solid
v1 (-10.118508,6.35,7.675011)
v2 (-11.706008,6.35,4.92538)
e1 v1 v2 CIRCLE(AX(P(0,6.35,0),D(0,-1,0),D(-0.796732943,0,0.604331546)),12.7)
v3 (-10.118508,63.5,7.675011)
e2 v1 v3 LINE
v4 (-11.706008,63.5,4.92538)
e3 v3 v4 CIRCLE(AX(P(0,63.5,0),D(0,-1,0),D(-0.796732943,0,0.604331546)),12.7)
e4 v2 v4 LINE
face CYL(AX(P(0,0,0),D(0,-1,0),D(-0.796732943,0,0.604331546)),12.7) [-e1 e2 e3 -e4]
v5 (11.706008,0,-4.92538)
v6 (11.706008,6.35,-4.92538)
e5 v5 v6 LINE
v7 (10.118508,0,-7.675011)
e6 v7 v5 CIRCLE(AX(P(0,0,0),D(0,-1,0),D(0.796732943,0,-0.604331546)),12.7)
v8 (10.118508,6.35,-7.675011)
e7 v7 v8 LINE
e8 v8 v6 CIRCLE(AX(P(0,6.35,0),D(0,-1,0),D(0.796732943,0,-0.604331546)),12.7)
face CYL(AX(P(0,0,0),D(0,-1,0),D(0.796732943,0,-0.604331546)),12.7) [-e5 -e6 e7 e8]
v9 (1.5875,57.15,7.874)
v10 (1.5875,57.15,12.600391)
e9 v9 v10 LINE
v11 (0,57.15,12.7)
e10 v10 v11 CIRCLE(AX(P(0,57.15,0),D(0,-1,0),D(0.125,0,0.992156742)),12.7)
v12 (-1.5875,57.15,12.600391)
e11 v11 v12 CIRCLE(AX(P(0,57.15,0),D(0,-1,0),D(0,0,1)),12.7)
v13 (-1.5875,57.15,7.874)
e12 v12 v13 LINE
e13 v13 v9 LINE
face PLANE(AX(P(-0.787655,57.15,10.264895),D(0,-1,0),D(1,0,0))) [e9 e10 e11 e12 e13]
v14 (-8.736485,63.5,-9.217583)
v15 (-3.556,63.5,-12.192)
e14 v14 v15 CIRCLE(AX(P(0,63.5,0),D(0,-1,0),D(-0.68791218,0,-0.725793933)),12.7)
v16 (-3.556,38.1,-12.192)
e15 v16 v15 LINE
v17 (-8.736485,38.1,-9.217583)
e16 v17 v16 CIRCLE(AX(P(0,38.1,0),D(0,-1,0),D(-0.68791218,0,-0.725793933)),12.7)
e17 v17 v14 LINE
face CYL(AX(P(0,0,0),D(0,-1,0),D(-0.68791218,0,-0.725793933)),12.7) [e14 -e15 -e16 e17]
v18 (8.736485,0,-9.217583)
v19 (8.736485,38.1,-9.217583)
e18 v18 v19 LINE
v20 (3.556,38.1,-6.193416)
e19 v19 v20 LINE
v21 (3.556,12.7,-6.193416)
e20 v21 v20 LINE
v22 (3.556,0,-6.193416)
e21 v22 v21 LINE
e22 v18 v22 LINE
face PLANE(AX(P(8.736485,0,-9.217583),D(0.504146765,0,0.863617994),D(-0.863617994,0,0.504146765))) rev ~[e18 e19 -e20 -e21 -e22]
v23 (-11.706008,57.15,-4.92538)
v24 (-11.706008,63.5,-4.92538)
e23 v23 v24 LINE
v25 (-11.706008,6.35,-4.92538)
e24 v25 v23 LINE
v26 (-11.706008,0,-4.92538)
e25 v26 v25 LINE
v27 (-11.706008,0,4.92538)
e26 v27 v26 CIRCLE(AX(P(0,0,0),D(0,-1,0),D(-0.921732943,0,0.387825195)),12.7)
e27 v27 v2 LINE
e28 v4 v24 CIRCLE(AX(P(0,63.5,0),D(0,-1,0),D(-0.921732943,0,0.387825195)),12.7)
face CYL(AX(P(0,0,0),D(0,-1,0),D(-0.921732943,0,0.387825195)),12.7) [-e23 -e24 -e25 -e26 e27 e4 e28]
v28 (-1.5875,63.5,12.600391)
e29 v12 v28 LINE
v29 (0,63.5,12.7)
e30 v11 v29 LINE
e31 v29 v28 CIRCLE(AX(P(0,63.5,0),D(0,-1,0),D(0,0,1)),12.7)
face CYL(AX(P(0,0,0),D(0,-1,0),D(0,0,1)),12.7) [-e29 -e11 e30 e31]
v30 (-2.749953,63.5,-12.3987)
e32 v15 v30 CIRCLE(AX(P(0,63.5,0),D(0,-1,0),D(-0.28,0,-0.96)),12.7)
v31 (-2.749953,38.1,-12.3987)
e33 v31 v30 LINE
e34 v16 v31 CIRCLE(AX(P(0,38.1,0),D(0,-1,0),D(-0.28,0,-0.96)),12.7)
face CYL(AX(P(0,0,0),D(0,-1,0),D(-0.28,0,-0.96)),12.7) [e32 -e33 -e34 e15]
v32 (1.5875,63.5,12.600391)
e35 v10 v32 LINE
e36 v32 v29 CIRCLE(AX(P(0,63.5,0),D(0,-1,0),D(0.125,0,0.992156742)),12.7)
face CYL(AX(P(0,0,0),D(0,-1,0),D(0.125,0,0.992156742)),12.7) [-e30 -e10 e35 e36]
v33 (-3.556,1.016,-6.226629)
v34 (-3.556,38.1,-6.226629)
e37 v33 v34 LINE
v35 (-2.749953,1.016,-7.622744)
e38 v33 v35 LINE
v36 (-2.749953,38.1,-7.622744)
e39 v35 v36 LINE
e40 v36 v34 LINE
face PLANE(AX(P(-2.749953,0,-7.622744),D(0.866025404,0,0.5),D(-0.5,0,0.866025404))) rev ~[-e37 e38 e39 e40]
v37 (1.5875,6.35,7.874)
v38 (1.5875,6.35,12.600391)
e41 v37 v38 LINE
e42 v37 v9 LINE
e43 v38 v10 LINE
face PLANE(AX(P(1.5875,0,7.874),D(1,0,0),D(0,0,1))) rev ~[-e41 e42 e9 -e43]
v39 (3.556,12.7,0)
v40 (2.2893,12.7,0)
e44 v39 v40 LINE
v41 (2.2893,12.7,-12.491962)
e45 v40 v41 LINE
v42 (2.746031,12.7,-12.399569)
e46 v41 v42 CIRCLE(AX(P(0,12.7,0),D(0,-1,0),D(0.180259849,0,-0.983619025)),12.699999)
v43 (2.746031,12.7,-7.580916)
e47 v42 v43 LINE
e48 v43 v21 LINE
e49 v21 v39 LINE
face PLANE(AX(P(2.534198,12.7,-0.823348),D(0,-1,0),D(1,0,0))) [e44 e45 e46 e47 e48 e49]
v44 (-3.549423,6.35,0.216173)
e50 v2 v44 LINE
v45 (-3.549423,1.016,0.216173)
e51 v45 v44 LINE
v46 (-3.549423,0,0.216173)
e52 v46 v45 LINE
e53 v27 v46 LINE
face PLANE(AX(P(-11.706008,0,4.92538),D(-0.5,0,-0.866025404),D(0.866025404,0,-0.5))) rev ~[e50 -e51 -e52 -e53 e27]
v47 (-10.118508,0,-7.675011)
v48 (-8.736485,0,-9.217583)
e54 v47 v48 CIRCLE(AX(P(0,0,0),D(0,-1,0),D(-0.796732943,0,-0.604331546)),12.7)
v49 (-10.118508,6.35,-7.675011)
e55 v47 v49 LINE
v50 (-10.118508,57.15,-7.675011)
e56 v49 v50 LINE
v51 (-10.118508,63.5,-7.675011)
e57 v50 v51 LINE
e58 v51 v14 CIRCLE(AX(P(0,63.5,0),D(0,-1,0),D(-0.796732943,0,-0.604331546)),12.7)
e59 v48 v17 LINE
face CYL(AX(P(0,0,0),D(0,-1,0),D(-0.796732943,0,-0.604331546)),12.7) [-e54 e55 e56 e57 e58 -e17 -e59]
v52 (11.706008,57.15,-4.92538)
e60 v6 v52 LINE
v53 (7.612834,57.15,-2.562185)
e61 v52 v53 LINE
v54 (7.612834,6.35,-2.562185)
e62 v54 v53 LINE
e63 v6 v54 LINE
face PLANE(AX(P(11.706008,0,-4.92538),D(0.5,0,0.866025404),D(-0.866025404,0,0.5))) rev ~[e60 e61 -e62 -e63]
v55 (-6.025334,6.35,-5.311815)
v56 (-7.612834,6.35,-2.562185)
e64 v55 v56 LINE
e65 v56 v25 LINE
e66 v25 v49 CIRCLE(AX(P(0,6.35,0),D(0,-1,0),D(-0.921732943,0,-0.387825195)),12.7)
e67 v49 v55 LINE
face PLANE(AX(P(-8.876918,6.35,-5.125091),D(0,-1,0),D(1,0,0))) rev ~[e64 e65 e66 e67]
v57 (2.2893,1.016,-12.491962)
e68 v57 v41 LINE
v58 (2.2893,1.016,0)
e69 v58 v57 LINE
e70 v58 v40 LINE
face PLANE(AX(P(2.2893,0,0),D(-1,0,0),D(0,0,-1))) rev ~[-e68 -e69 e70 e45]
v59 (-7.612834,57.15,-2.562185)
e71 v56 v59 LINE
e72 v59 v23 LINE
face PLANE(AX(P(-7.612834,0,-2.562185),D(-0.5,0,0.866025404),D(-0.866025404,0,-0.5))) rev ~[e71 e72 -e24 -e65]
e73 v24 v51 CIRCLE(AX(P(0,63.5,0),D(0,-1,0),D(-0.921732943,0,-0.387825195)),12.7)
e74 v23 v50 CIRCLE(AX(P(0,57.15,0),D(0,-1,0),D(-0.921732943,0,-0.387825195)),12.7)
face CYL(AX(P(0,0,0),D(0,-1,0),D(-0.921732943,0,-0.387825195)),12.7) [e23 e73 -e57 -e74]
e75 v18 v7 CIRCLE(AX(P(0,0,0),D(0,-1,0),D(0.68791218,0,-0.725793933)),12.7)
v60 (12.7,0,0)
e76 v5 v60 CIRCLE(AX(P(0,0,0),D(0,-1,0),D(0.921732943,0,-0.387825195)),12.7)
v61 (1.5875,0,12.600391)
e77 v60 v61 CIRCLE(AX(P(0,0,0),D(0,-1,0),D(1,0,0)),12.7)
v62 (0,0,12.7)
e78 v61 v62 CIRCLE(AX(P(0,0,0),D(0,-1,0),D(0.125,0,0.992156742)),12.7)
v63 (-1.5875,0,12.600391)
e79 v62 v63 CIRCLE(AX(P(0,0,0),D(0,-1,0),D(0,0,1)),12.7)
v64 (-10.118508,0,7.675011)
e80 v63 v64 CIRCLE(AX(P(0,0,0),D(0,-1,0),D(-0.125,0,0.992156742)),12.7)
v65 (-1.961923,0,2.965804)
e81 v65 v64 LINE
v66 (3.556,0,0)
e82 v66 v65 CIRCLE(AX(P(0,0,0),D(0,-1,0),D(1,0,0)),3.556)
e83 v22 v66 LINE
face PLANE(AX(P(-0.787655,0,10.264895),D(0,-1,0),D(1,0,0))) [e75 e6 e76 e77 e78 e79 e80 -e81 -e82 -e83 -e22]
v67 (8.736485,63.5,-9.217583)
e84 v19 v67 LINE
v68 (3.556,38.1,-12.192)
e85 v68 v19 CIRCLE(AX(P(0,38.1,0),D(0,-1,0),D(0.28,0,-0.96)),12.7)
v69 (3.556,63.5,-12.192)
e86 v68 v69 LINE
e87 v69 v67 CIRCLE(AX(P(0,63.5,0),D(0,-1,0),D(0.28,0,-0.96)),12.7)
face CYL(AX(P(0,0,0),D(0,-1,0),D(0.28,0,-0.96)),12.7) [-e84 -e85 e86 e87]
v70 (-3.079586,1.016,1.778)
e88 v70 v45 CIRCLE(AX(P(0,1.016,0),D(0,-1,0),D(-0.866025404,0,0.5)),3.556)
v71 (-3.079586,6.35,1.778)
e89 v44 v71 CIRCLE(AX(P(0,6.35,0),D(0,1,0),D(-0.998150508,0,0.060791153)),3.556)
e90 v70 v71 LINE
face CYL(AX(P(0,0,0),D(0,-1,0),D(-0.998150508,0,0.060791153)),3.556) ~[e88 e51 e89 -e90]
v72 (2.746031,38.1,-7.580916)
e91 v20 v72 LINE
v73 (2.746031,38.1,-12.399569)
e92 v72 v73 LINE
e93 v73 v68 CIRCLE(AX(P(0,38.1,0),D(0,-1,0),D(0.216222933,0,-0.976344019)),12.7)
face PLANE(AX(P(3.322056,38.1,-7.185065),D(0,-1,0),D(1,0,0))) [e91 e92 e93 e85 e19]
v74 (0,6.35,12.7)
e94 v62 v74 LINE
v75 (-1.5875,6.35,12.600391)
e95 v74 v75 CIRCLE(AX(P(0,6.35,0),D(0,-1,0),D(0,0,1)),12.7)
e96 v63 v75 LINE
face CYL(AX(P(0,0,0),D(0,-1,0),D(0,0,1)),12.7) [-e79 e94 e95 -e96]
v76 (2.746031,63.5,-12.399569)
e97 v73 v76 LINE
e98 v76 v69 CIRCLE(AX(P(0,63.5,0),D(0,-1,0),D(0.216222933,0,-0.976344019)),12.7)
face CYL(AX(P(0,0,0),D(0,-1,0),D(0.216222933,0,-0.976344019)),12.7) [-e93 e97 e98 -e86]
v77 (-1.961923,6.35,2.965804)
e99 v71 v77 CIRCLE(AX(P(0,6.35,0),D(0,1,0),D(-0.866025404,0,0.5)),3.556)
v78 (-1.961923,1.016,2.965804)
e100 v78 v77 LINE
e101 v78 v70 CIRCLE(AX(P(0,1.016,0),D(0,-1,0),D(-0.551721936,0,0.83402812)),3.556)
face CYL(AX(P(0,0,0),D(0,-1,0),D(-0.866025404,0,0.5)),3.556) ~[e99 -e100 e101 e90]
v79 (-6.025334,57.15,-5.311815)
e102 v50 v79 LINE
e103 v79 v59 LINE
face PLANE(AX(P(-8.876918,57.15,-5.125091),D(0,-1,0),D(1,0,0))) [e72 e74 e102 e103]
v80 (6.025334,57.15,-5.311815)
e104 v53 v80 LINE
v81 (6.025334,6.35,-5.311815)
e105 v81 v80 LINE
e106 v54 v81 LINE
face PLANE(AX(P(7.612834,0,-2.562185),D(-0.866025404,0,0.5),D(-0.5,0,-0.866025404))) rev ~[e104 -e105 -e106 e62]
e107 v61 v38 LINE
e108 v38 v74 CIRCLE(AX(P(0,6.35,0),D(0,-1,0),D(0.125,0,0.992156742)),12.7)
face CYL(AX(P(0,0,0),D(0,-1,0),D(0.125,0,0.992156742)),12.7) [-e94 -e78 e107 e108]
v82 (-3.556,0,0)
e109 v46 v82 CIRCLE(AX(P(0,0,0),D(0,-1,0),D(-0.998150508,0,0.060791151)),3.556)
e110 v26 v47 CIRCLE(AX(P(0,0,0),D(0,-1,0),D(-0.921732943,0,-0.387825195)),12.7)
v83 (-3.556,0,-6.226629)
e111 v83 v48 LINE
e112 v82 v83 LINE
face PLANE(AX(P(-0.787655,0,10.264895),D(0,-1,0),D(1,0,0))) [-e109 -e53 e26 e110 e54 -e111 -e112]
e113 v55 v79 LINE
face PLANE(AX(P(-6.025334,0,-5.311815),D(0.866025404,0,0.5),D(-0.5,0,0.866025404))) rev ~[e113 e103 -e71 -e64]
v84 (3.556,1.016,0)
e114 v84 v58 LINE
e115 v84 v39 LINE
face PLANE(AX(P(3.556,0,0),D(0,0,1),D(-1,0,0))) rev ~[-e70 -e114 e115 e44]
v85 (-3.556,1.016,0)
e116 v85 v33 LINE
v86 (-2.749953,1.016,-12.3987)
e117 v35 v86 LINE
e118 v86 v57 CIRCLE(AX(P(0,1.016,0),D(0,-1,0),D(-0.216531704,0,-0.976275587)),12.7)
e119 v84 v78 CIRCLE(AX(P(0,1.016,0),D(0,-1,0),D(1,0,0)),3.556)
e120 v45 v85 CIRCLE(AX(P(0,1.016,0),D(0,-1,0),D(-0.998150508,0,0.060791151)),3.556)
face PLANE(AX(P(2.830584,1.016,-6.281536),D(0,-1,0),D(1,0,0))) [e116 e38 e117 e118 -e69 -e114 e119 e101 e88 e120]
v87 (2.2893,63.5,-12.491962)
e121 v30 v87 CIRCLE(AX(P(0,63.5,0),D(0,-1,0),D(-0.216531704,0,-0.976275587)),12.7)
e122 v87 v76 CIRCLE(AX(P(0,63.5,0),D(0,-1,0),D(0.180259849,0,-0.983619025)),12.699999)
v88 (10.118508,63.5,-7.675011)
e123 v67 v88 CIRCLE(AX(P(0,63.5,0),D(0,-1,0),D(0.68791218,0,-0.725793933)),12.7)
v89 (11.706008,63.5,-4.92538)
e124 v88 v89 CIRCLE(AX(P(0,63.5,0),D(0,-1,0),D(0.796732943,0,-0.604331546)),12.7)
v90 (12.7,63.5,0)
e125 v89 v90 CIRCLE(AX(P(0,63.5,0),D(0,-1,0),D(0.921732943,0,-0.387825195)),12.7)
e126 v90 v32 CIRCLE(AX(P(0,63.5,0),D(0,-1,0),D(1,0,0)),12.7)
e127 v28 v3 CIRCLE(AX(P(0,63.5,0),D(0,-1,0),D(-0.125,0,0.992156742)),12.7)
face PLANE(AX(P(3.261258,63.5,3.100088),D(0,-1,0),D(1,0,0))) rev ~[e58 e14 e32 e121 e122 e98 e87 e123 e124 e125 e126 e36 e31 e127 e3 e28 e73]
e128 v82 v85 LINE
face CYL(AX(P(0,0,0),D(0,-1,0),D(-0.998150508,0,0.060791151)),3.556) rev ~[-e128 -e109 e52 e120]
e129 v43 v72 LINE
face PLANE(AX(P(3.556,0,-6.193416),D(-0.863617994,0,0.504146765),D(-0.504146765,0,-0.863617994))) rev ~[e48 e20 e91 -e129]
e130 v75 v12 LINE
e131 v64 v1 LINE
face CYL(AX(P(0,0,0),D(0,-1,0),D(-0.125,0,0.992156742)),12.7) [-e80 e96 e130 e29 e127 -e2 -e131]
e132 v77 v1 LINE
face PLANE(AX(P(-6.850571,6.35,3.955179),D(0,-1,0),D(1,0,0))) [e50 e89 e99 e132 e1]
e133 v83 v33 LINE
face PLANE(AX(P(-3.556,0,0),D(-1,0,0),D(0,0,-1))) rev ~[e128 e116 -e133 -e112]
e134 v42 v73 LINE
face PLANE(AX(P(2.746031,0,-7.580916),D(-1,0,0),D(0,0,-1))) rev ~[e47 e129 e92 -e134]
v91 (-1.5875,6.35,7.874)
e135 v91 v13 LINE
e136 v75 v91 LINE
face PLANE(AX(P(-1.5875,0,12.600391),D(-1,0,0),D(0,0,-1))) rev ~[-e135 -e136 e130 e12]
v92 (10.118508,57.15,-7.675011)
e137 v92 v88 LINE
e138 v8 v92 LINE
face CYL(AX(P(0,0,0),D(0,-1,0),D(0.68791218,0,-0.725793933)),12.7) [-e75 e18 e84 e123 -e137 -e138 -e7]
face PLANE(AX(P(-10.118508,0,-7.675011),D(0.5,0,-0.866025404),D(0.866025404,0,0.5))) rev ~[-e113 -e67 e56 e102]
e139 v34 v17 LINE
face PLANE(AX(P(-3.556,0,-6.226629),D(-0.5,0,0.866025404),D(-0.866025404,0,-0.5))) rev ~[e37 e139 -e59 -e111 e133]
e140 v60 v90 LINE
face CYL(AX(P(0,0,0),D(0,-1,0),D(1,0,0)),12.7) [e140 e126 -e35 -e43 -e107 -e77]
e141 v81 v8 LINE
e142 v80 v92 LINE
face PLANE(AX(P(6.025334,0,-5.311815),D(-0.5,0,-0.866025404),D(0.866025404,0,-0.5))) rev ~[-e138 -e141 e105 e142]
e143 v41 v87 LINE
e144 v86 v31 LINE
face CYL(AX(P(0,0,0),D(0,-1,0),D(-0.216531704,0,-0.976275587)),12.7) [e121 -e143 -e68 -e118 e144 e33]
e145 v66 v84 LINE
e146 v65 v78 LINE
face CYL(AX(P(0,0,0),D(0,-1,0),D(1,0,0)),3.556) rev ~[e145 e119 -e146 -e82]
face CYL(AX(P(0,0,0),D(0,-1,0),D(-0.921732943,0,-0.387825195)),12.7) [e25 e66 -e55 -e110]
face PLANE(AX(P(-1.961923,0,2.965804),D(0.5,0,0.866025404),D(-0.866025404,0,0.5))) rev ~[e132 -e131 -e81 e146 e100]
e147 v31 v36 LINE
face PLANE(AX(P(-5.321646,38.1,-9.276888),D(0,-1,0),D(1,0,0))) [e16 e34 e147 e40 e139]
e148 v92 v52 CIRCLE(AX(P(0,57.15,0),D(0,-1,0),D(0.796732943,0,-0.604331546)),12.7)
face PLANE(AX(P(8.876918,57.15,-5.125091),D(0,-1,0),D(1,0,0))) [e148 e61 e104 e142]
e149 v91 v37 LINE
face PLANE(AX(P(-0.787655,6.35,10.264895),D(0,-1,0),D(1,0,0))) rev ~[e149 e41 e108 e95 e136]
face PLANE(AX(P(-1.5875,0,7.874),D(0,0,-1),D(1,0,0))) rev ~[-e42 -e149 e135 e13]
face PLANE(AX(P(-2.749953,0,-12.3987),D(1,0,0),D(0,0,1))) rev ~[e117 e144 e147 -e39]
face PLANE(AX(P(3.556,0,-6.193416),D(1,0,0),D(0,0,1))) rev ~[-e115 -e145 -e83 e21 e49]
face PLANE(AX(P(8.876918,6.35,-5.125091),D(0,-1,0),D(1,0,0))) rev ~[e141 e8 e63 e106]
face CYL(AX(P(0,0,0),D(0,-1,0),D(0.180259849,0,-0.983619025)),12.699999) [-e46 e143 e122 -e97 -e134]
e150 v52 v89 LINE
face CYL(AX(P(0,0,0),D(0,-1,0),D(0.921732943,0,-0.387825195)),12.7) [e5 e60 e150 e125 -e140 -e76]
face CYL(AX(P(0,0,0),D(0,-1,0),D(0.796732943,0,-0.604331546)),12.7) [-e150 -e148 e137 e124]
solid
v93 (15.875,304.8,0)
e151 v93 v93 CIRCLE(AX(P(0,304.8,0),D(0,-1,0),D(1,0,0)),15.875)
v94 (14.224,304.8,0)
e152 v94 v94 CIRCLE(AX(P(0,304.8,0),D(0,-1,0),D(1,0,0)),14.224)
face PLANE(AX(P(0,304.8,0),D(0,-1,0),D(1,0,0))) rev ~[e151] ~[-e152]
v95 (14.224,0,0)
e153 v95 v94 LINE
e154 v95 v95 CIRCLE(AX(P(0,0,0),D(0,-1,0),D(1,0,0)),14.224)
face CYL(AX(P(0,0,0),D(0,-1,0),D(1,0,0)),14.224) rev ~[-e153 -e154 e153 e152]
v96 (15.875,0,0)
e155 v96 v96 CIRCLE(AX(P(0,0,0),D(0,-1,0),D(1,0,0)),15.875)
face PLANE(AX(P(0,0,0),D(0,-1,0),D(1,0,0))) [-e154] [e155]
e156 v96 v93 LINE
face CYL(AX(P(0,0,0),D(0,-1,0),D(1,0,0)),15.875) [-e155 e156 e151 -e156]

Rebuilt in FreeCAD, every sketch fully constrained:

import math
import FreeCAD as App
import Part
import Sketcher
Q = App.Units.Quantity

doc = App.newDocument("Part")
body = doc.addObject("PartDesign::Body", "Body")

# Sketch on XZ plane
sketch1 = body.newObject("Sketcher::SketchObject", "Sketch")
sketch1.AttachmentSupport = (doc.getObject("XZ_Plane"), [""])
sketch1.MapMode = "FlatFace"
sketch1.addGeometry([
    Part.Circle(App.Vector(0, 0, 0), App.Vector(0, 0, 1), 15.875),
    Part.Circle(App.Vector(0, 0, 0), App.Vector(0, 0, 1), 14.224),
], False)
sketch1.addConstraint([
    Sketcher.Constraint("Coincident", 0, 3, -1, 1),
    Sketcher.Constraint("Coincident", 1, 3, -1, 1),
    Sketcher.Constraint("Diameter", 0, Q("1.25 in")),
    Sketcher.Constraint("Diameter", 1, Q("1.12 in")),
])
pad1 = body.newObject("PartDesign::Pad", "Pad")
pad1.Profile = sketch1
pad1.Length = Q("12 in")
pad1.Reversed = True
body2 = doc.addObject("PartDesign::Body", "Body001")

# Sketch on XZ plane
sketch2 = body2.newObject("Sketcher::SketchObject", "Sketch001")
sketch2.AttachmentSupport = (doc.getObject("XZ_Plane001"), [""])
sketch2.MapMode = "FlatFace"
sketch2.addGeometry([
    Part.ArcOfCircle(Part.Circle(App.Vector(0, 0, 0), App.Vector(0, 0, 1), 12.7), math.radians(97.180756), math.radians(142.819244)),  # 0
    Part.ArcOfCircle(Part.Circle(App.Vector(0, 0, 0), App.Vector(0, 0, 1), 12.7), math.radians(142.819244), math.radians(157.180756)),  # 1
    Part.ArcOfCircle(Part.Circle(App.Vector(0, 0, 0), App.Vector(0, 0, 1), 12.7), math.radians(157.180756), math.radians(202.819244)),  # 2
    Part.ArcOfCircle(Part.Circle(App.Vector(0, 0, 0), App.Vector(0, 0, 1), 12.7), math.radians(-157.180756), math.radians(-142.819244)),  # 3
    Part.ArcOfCircle(Part.Circle(App.Vector(0, 0, 0), App.Vector(0, 0, 1), 12.7), math.radians(-142.819244), math.radians(-133.465066)),  # 4
    Part.ArcOfCircle(Part.Circle(App.Vector(0, 0, 0), App.Vector(0, 0, 1), 12.7), math.radians(-133.465066), math.radians(-106.260205)),  # 5
    Part.ArcOfCircle(Part.Circle(App.Vector(0, 0, 0), App.Vector(0, 0, 1), 12.7), math.radians(-106.260205), math.radians(-102.505405)),  # 6
    Part.ArcOfCircle(Part.Circle(App.Vector(0, 0, 0), App.Vector(0, 0, 1), 12.7), math.radians(-102.505405), math.radians(-79.615104)),  # 7
    Part.ArcOfCircle(Part.Circle(App.Vector(0, 0, 0), App.Vector(0, 0, 1), 12.699999), math.radians(-79.615104), math.radians(-77.512716)),  # 8
    Part.ArcOfCircle(Part.Circle(App.Vector(0, 0, 0), App.Vector(0, 0, 1), 12.7), math.radians(-77.512716), math.radians(-73.739795)),  # 9
    Part.ArcOfCircle(Part.Circle(App.Vector(0, 0, 0), App.Vector(0, 0, 1), 12.7), math.radians(-73.739795), math.radians(-46.534934)),  # 10
    Part.ArcOfCircle(Part.Circle(App.Vector(0, 0, 0), App.Vector(0, 0, 1), 12.7), math.radians(-46.534934), math.radians(-37.180756)),  # 11
    Part.ArcOfCircle(Part.Circle(App.Vector(0, 0, 0), App.Vector(0, 0, 1), 12.7), math.radians(-37.180756), math.radians(-22.819244)),  # 12
    Part.ArcOfCircle(Part.Circle(App.Vector(0, 0, 0), App.Vector(0, 0, 1), 12.7), math.radians(-22.819244), math.radians(0)),  # 13
    Part.ArcOfCircle(Part.Circle(App.Vector(0, 0, 0), App.Vector(0, 0, 1), 12.7), math.radians(0), math.radians(82.819244)),  # 14
    Part.ArcOfCircle(Part.Circle(App.Vector(0, 0, 0), App.Vector(0, 0, 1), 12.7), math.radians(82.819244), math.radians(90)),  # 15
    Part.ArcOfCircle(Part.Circle(App.Vector(0, 0, 0), App.Vector(0, 0, 1), 12.7), math.radians(90), math.radians(97.180756)),  # 16
], False)
sketch2.addConstraint([
    Sketcher.Constraint("Tangent", 0, 2, 1, 1),
    Sketcher.Constraint("Tangent", 1, 2, 2, 1),
    Sketcher.Constraint("Tangent", 2, 2, 3, 1),
    Sketcher.Constraint("Tangent", 3, 2, 4, 1),
    Sketcher.Constraint("Tangent", 4, 2, 5, 1),
    Sketcher.Constraint("Tangent", 5, 2, 6, 1),
    Sketcher.Constraint("Tangent", 6, 2, 7, 1),
    Sketcher.Constraint("Tangent", 7, 2, 8, 1),
    Sketcher.Constraint("Tangent", 8, 2, 9, 1),
    Sketcher.Constraint("Tangent", 9, 2, 10, 1),
    Sketcher.Constraint("Tangent", 10, 2, 11, 1),
    Sketcher.Constraint("Tangent", 11, 2, 12, 1),
    Sketcher.Constraint("Tangent", 12, 2, 13, 1),
    Sketcher.Constraint("Tangent", 13, 2, 14, 1),
    Sketcher.Constraint("Tangent", 14, 2, 15, 1),
    Sketcher.Constraint("Tangent", 15, 2, 16, 1),
    Sketcher.Constraint("Tangent", 16, 2, 0, 1),
    Sketcher.Constraint("Coincident", 0, 3, -1, 1),
    Sketcher.Constraint("Coincident", 2, 3, -1, 1),
    Sketcher.Constraint("Coincident", 4, 3, -1, 1),
    Sketcher.Constraint("Coincident", 6, 3, -1, 1),
    Sketcher.Constraint("Coincident", 8, 3, -1, 1),
    Sketcher.Constraint("Coincident", 10, 3, -1, 1),
    Sketcher.Constraint("Coincident", 12, 3, -1, 1),
    Sketcher.Constraint("Coincident", 14, 3, -1, 1),
    Sketcher.Constraint("PointOnObject", 13, 2, -1),
    Sketcher.Constraint("PointOnObject", 15, 2, -2),
    Sketcher.Constraint("Horizontal", 5, 2, 9, 2),
    Sketcher.Constraint("Horizontal", 4, 2, 10, 2),
    Sketcher.Constraint("Horizontal", 3, 2, 11, 2),
    Sketcher.Constraint("Horizontal", 2, 2, 12, 2),
    Sketcher.Constraint("Horizontal", 14, 2, 16, 2),
    Sketcher.Constraint("Vertical", 1, 2, 2, 2),
    Sketcher.Constraint("Vertical", 0, 2, 3, 2),
    Sketcher.Constraint("Radius", 0, Q("0.5 in")),
    Sketcher.Constraint("DistanceX", 5, 2, -1, 1, Q("0.14 in")),
    Sketcher.Constraint("DistanceX", -1, 1, 14, 2, Q("0.0625 in")),
    Sketcher.Constraint("DistanceX", 1, 2, 0, 2, Q("0.0625 in")),
    Sketcher.Constraint("DistanceY", 6, 2, -1, 1, 12.3987),
    Sketcher.Constraint("DistanceX", -1, 1, 7, 2, 2.2893),
    Sketcher.Constraint("DistanceX", 0, 2, -1, 1, 10.118508),
    Sketcher.Constraint("DistanceX", -1, 1, 8, 2, 2.746031),
    Sketcher.Constraint("DistanceY", 7, 2, 4, 2, 3.274379),
])
pad2 = body2.newObject("PartDesign::Pad", "Pad001")
pad2.Profile = sketch2
pad2.Length = Q("2.5 in")
pad2.Reversed = True

# Sketch on XZ plane
sketch3 = body2.newObject("Sketcher::SketchObject", "Sketch002")
sketch3.AttachmentSupport = (doc.getObject("XZ_Plane001"), [""])
sketch3.MapMode = "FlatFace"
sketch3.addGeometry([
    Part.ArcOfCircle(Part.Circle(App.Vector(0, 0, 0), App.Vector(0, 0, 1), 12.7), math.radians(90), math.radians(97.180756)),  # 0
    Part.LineSegment(App.Vector(-1.5875, 12.600391, 0), App.Vector(-1.5875, 7.874, 0)),  # 1
    Part.LineSegment(App.Vector(-1.5875, 7.874, 0), App.Vector(1.5875, 7.874, 0)),  # 2
    Part.LineSegment(App.Vector(1.5875, 7.874, 0), App.Vector(1.5875, 12.600391, 0)),  # 3
    Part.ArcOfCircle(Part.Circle(App.Vector(0, 0, 0), App.Vector(0, 0, 1), 12.7), math.radians(82.819244), math.radians(90)),  # 4
    Part.LineSegment(App.Vector(-7.612834, -2.562185, 0), App.Vector(-11.706008, -4.92538, 0)),  # 5
    Part.ArcOfCircle(Part.Circle(App.Vector(0, 0, 0), App.Vector(0, 0, 1), 12.7), math.radians(-157.180756), math.radians(-142.819244)),  # 6
    Part.LineSegment(App.Vector(-10.118508, -7.675011, 0), App.Vector(-6.025334, -5.311815, 0)),  # 7
    Part.LineSegment(App.Vector(-6.025334, -5.311815, 0), App.Vector(-7.612834, -2.562185, 0)),  # 8
    Part.ArcOfCircle(Part.Circle(App.Vector(0, 0, 0), App.Vector(0, 0, 1), 12.7), math.radians(-37.180756), math.radians(-22.819244)),  # 9
    Part.LineSegment(App.Vector(11.706008, -4.92538, 0), App.Vector(7.612834, -2.562185, 0)),  # 10
    Part.LineSegment(App.Vector(7.612834, -2.562185, 0), App.Vector(6.025334, -5.311815, 0)),  # 11
    Part.LineSegment(App.Vector(6.025334, -5.311815, 0), App.Vector(10.118508, -7.675011, 0)),  # 12
], False)
sketch3.addConstraint([
    Sketcher.Constraint("Coincident", 0, 2, 1, 1),
    Sketcher.Constraint("Coincident", 1, 2, 2, 1),
    Sketcher.Constraint("Coincident", 2, 2, 3, 1),
    Sketcher.Constraint("Coincident", 3, 2, 4, 1),
    Sketcher.Constraint("Tangent", 4, 2, 0, 1),
    Sketcher.Constraint("Coincident", 5, 2, 6, 1),
    Sketcher.Constraint("Coincident", 6, 2, 7, 1),
    Sketcher.Constraint("Coincident", 7, 2, 8, 1),
    Sketcher.Constraint("Coincident", 8, 2, 5, 1),
    Sketcher.Constraint("Coincident", 9, 2, 10, 1),
    Sketcher.Constraint("Coincident", 10, 2, 11, 1),
    Sketcher.Constraint("Coincident", 11, 2, 12, 1),
    Sketcher.Constraint("Coincident", 12, 2, 9, 1),
    Sketcher.Constraint("Vertical", 1),
    Sketcher.Constraint("Horizontal", 2),
    Sketcher.Constraint("Vertical", 3),
    Sketcher.Constraint("Coincident", 0, 3, -1, 1),
    Sketcher.Constraint("Coincident", 6, 3, -1, 1),
    Sketcher.Constraint("Coincident", 9, 3, -1, 1),
    Sketcher.Constraint("Equal", 0, 4),
    Sketcher.Constraint("Equal", 4, 6),
    Sketcher.Constraint("Equal", 6, 9),
    Sketcher.Constraint("Symmetric", 8, 2, 10, 2, -2),
    Sketcher.Constraint("Symmetric", 7, 2, 11, 2, -2),
    Sketcher.Constraint("PointOnObject", 4, 2, -2),
    Sketcher.Constraint("Parallel", 5, 7),
    Sketcher.Constraint("Perpendicular", 7, 8),
    Sketcher.Constraint("Perpendicular", 10, 11),
    Sketcher.Constraint("Perpendicular", 11, 12),
    Sketcher.Constraint("Horizontal", 0, 2, 3, 2),
    Sketcher.Constraint("Equal", 5, 7),
    Sketcher.Constraint("Radius", 0, Q("0.5 in")),
    Sketcher.Constraint("Angle", 5, Q("-150 deg")),
    Sketcher.Constraint("DistanceX", 2, 1, 2, 2, Q("0.125 in")),
    Sketcher.Constraint("DistanceY", -1, 1, 1, 2, Q("0.31 in")),
    Sketcher.Constraint("Distance", 8, Q("0.125 in")),
    Sketcher.Constraint("Distance", 5, 4.726391),
])
pocket1 = body2.newObject("PartDesign::Pocket", "Pocket")
pocket1.Profile = sketch3
pocket1.Length = Q("2.25 in")

# Sketch on XZ plane
sketch4 = body2.newObject("Sketcher::SketchObject", "Sketch003")
sketch4.AttachmentSupport = (doc.getObject("XZ_Plane001"), [""])
sketch4.MapMode = "FlatFace"
sketch4.addGeometry([
    Part.ArcOfCircle(Part.Circle(App.Vector(0, 0, 0), App.Vector(0, 0, 1), 12.7), math.radians(90), math.radians(97.180756)),  # 0
    Part.LineSegment(App.Vector(-1.5875, 12.600391, 0), App.Vector(-1.5875, 7.874, 0)),  # 1
    Part.LineSegment(App.Vector(-1.5875, 7.874, 0), App.Vector(1.5875, 7.874, 0)),  # 2
    Part.LineSegment(App.Vector(1.5875, 7.874, 0), App.Vector(1.5875, 12.600391, 0)),  # 3
    Part.ArcOfCircle(Part.Circle(App.Vector(0, 0, 0), App.Vector(0, 0, 1), 12.7), math.radians(82.819244), math.radians(90)),  # 4
    Part.LineSegment(App.Vector(-7.612834, -2.562185, 0), App.Vector(-11.706008, -4.92538, 0)),  # 5
    Part.ArcOfCircle(Part.Circle(App.Vector(0, 0, 0), App.Vector(0, 0, 1), 12.7), math.radians(-157.180756), math.radians(-142.819244)),  # 6
    Part.LineSegment(App.Vector(-10.118508, -7.675011, 0), App.Vector(-6.025334, -5.311815, 0)),  # 7
    Part.LineSegment(App.Vector(-6.025334, -5.311815, 0), App.Vector(-7.612834, -2.562185, 0)),  # 8
    Part.ArcOfCircle(Part.Circle(App.Vector(0, 0, 0), App.Vector(0, 0, 1), 12.7), math.radians(-37.180756), math.radians(-22.819244)),  # 9
    Part.LineSegment(App.Vector(11.706008, -4.92538, 0), App.Vector(7.612834, -2.562185, 0)),  # 10
    Part.LineSegment(App.Vector(7.612834, -2.562185, 0), App.Vector(6.025334, -5.311815, 0)),  # 11
    Part.LineSegment(App.Vector(6.025334, -5.311815, 0), App.Vector(10.118508, -7.675011, 0)),  # 12
], False)
sketch4.addConstraint([
    Sketcher.Constraint("Coincident", 0, 2, 1, 1),
    Sketcher.Constraint("Coincident", 1, 2, 2, 1),
    Sketcher.Constraint("Coincident", 2, 2, 3, 1),
    Sketcher.Constraint("Coincident", 3, 2, 4, 1),
    Sketcher.Constraint("Tangent", 4, 2, 0, 1),
    Sketcher.Constraint("Coincident", 5, 2, 6, 1),
    Sketcher.Constraint("Coincident", 6, 2, 7, 1),
    Sketcher.Constraint("Coincident", 7, 2, 8, 1),
    Sketcher.Constraint("Coincident", 8, 2, 5, 1),
    Sketcher.Constraint("Coincident", 9, 2, 10, 1),
    Sketcher.Constraint("Coincident", 10, 2, 11, 1),
    Sketcher.Constraint("Coincident", 11, 2, 12, 1),
    Sketcher.Constraint("Coincident", 12, 2, 9, 1),
    Sketcher.Constraint("Vertical", 1),
    Sketcher.Constraint("Horizontal", 2),
    Sketcher.Constraint("Vertical", 3),
    Sketcher.Constraint("Coincident", 0, 3, -1, 1),
    Sketcher.Constraint("Coincident", 6, 3, -1, 1),
    Sketcher.Constraint("Coincident", 9, 3, -1, 1),
    Sketcher.Constraint("Equal", 0, 4),
    Sketcher.Constraint("Equal", 4, 6),
    Sketcher.Constraint("Equal", 6, 9),
    Sketcher.Constraint("Symmetric", 8, 2, 10, 2, -2),
    Sketcher.Constraint("Symmetric", 7, 2, 11, 2, -2),
    Sketcher.Constraint("PointOnObject", 4, 2, -2),
    Sketcher.Constraint("Parallel", 5, 7),
    Sketcher.Constraint("Perpendicular", 7, 8),
    Sketcher.Constraint("Perpendicular", 10, 11),
    Sketcher.Constraint("Perpendicular", 11, 12),
    Sketcher.Constraint("Horizontal", 0, 2, 3, 2),
    Sketcher.Constraint("Equal", 5, 7),
    Sketcher.Constraint("Radius", 0, Q("0.5 in")),
    Sketcher.Constraint("Angle", 5, Q("-150 deg")),
    Sketcher.Constraint("DistanceX", 2, 1, 2, 2, Q("0.125 in")),
    Sketcher.Constraint("DistanceY", -1, 1, 1, 2, Q("0.31 in")),
    Sketcher.Constraint("Distance", 8, Q("0.125 in")),
    Sketcher.Constraint("Distance", 5, 4.726391),
])
pad3 = body2.newObject("PartDesign::Pad", "Pad002")
pad3.Profile = sketch4
pad3.Length = Q("0.25 in")
pad3.Reversed = True

# Sketch on XZ plane
sketch5 = body2.newObject("Sketcher::SketchObject", "Sketch004")
sketch5.AttachmentSupport = (doc.getObject("XZ_Plane001"), [""])
sketch5.MapMode = "FlatFace"
sketch5.addGeometry([
    Part.LineSegment(App.Vector(3.556, -6.193416, 0), App.Vector(3.556, 0, 0)),  # 0
    Part.ArcOfCircle(Part.Circle(App.Vector(0, 0, 0), App.Vector(0, 0, 1), 3.556), math.radians(0), math.radians(123.485225)),  # 1
    Part.ArcOfCircle(Part.Circle(App.Vector(0, 0, 0), App.Vector(0, 0, 1), 3.556), math.radians(123.485225), math.radians(150)),  # 2
    Part.ArcOfCircle(Part.Circle(App.Vector(0, 0, 0), App.Vector(0, 0, 1), 3.556), math.radians(150), math.radians(176.514775)),  # 3
    Part.ArcOfCircle(Part.Circle(App.Vector(0, 0, 0), App.Vector(0, 0, 1), 3.556), math.radians(176.514775), math.radians(180)),  # 4
    Part.LineSegment(App.Vector(-3.556, 0, 0), App.Vector(-3.556, -6.226629, 0)),  # 5
    Part.LineSegment(App.Vector(-3.556, -6.226629, 0), App.Vector(-2.749953, -7.622744, 0)),  # 6
    Part.LineSegment(App.Vector(-2.749953, -7.622744, 0), App.Vector(-2.749953, -12.3987, 0)),  # 7
    Part.ArcOfCircle(Part.Circle(App.Vector(0, 0, 0), App.Vector(0, 0, 1), 12.7), math.radians(-102.505405), math.radians(-79.615104)),  # 8
    Part.ArcOfCircle(Part.Circle(App.Vector(0, 0, 0), App.Vector(0, 0, 1), 12.699999), math.radians(-79.615104), math.radians(-77.512716)),  # 9
    Part.LineSegment(App.Vector(2.746031, -12.399569, 0), App.Vector(2.746031, -7.580916, 0)),  # 10
    Part.LineSegment(App.Vector(2.746031, -7.580916, 0), App.Vector(3.556, -6.193416, 0)),  # 11
], False)
sketch5.addConstraint([
    Sketcher.Constraint("Tangent", 0, 2, 1, 1),
    Sketcher.Constraint("Tangent", 1, 2, 2, 1),
    Sketcher.Constraint("Tangent", 2, 2, 3, 1),
    Sketcher.Constraint("Tangent", 3, 2, 4, 1),
    Sketcher.Constraint("Tangent", 4, 2, 5, 1),
    Sketcher.Constraint("Coincident", 5, 2, 6, 1),
    Sketcher.Constraint("Coincident", 6, 2, 7, 1),
    Sketcher.Constraint("Coincident", 7, 2, 8, 1),
    Sketcher.Constraint("Tangent", 8, 2, 9, 1),
    Sketcher.Constraint("Coincident", 9, 2, 10, 1),
    Sketcher.Constraint("Coincident", 10, 2, 11, 1),
    Sketcher.Constraint("Coincident", 11, 2, 0, 1),
    Sketcher.Constraint("Vertical", 0),
    Sketcher.Constraint("Vertical", 5),
    Sketcher.Constraint("Vertical", 7),
    Sketcher.Constraint("Vertical", 10),
    Sketcher.Constraint("Coincident", 1, 3, -1, 1),
    Sketcher.Constraint("Coincident", 3, 3, -1, 1),
    Sketcher.Constraint("Coincident", 8, 3, -1, 1),
    Sketcher.Constraint("Equal", 3, 4),
    Sketcher.Constraint("Equal", 8, 9),
    Sketcher.Constraint("Radius", 8, Q("0.5 in")),
    Sketcher.Constraint("Radius", 1, Q("0.14 in")),
    Sketcher.Constraint("Angle", 6, Q("-60 deg")),
    Sketcher.Constraint("DistanceY", -1, 1, 2, 2, Q("0.07 in")),
    Sketcher.Constraint("DistanceX", 3, 2, 1, 2, Q("0.0625 in")),
    Sketcher.Constraint("DistanceY", 5, 2, 5, 1, 6.226629),
    Sketcher.Constraint("DistanceY", 7, 2, -1, 1, 12.3987),
    Sketcher.Constraint("DistanceX", -1, 1, 8, 2, 2.2893),
    Sketcher.Constraint("DistanceY", 10, 2, 11, 2, 1.3875),
    Sketcher.Constraint("DistanceY", 0, 1, 0, 2, 6.193416),
    Sketcher.Constraint("DistanceY", 10, 1, 10, 2, 4.818653),
    Sketcher.Constraint("DistanceY", 3, 2, 1, 2, 2.749631),
])
pocket2 = body2.newObject("PartDesign::Pocket", "Pocket001")
pocket2.Profile = sketch5
pocket2.Length = Q("0.04 in")

# Sketch on XZ plane
sketch6 = body2.newObject("Sketcher::SketchObject", "Sketch005")
sketch6.AttachmentSupport = (doc.getObject("XZ_Plane001"), [""])
sketch6.MapMode = "FlatFace"
sketch6.addGeometry([
    Part.LineSegment(App.Vector(-1.961923, 2.965804, 0), App.Vector(-10.118508, 7.675011, 0)),  # 0
    Part.ArcOfCircle(Part.Circle(App.Vector(0, 0, 0), App.Vector(0, 0, 1), 12.7), math.radians(142.819244), math.radians(157.180756)),  # 1
    Part.LineSegment(App.Vector(-11.706008, 4.92538, 0), App.Vector(-3.549423, 0.216173, 0)),  # 2
    Part.ArcOfCircle(Part.Circle(App.Vector(0, 0, 0), App.Vector(0, 0, 1), 3.556), math.radians(150), math.radians(176.514775)),  # 3
    Part.ArcOfCircle(Part.Circle(App.Vector(0, 0, 0), App.Vector(0, 0, 1), 3.556), math.radians(123.485225), math.radians(150)),  # 4
], False)
sketch6.addConstraint([
    Sketcher.Constraint("Coincident", 0, 2, 1, 1),
    Sketcher.Constraint("Coincident", 1, 2, 2, 1),
    Sketcher.Constraint("Coincident", 2, 2, 3, 2),
    Sketcher.Constraint("Tangent", 3, 1, 4, 2),
    Sketcher.Constraint("Coincident", 4, 1, 0, 1),
    Sketcher.Constraint("Coincident", 1, 3, -1, 1),
    Sketcher.Constraint("Coincident", 3, 3, -1, 1),
    Sketcher.Constraint("Equal", 3, 4),
    Sketcher.Constraint("Parallel", 0, 2),
    Sketcher.Constraint("Equal", 0, 2),
    Sketcher.Constraint("Radius", 1, Q("0.5 in")),
    Sketcher.Constraint("Radius", 3, Q("0.14 in")),
    Sketcher.Constraint("Angle", 0, Q("150 deg")),
    Sketcher.Constraint("DistanceY", -1, 1, 3, 1, Q("0.07 in")),
    Sketcher.Constraint("DistanceX", 1, 2, 0, 2, Q("0.0625 in")),
])
pocket3 = body2.newObject("PartDesign::Pocket", "Pocket002")
pocket3.Profile = sketch6
pocket3.Length = Q("0.25 in")

# Sketch on XZ plane
sketch7 = body2.newObject("Sketcher::SketchObject", "Sketch006")
sketch7.AttachmentSupport = (doc.getObject("XZ_Plane001"), [""])
sketch7.MapMode = "FlatFace"
sketch7.addGeometry([
    Part.LineSegment(App.Vector(2.2893, 0, 0), App.Vector(2.2893, -12.491962, 0)),  # 0
    Part.ArcOfCircle(Part.Circle(App.Vector(0, 0, 0), App.Vector(0, 0, 1), 12.699999), math.radians(-79.615104), math.radians(-77.512716)),  # 1
    Part.LineSegment(App.Vector(2.746031, -12.399569, 0), App.Vector(2.746031, -7.580916, 0)),  # 2
    Part.LineSegment(App.Vector(2.746031, -7.580916, 0), App.Vector(3.556, -6.193416, 0)),  # 3
    Part.LineSegment(App.Vector(3.556, -6.193416, 0), App.Vector(3.556, 0, 0)),  # 4
    Part.LineSegment(App.Vector(3.556, 0, 0), App.Vector(2.2893, 0, 0)),  # 5
], False)
sketch7.addConstraint([
    Sketcher.Constraint("Coincident", 0, 2, 1, 1),
    Sketcher.Constraint("Coincident", 1, 2, 2, 1),
    Sketcher.Constraint("Coincident", 2, 2, 3, 1),
    Sketcher.Constraint("Coincident", 3, 2, 4, 1),
    Sketcher.Constraint("Coincident", 4, 2, 5, 1),
    Sketcher.Constraint("Coincident", 5, 2, 0, 1),
    Sketcher.Constraint("Vertical", 0),
    Sketcher.Constraint("Vertical", 2),
    Sketcher.Constraint("Vertical", 4),
    Sketcher.Constraint("Horizontal", 5),
    Sketcher.Constraint("Coincident", 1, 3, -1, 1),
    Sketcher.Constraint("PointOnObject", 4, 2, -1),
    Sketcher.Constraint("Radius", 1, Q("0.5 in")),
    Sketcher.Constraint("DistanceX", -1, 1, 3, 2, Q("0.14 in")),
    Sketcher.Constraint("DistanceX", 5, 2, 5, 1, 1.2667),
    Sketcher.Constraint("DistanceY", 2, 2, 3, 2, 1.3875),
    Sketcher.Constraint("DistanceY", 2, 1, 2, 2, 4.818653),
    Sketcher.Constraint("DistanceY", 4, 1, 4, 2, 6.193416),
])
pocket4 = body2.newObject("PartDesign::Pocket", "Pocket003")
pocket4.Profile = sketch7
pocket4.Length = Q("0.5 in")

# Sketch on XZ plane
sketch8 = body2.newObject("Sketcher::SketchObject", "Sketch007")
sketch8.AttachmentSupport = (doc.getObject("XZ_Plane001"), [""])
sketch8.MapMode = "FlatFace"
sketch8.addGeometry([
    Part.LineSegment(App.Vector(-3.556, -6.226629, 0), App.Vector(-8.736485, -9.217583, 0)),  # 0
    Part.ArcOfCircle(Part.Circle(App.Vector(0, 0, 0), App.Vector(0, 0, 1), 12.7), math.radians(-133.465066), math.radians(-106.260205)),  # 1
    Part.ArcOfCircle(Part.Circle(App.Vector(0, 0, 0), App.Vector(0, 0, 1), 12.7), math.radians(-106.260205), math.radians(-102.505405)),  # 2
    Part.LineSegment(App.Vector(-2.749953, -12.3987, 0), App.Vector(-2.749953, -7.622744, 0)),  # 3
    Part.LineSegment(App.Vector(-2.749953, -7.622744, 0), App.Vector(-3.556, -6.226629, 0)),  # 4
    Part.LineSegment(App.Vector(3.556, -6.193416, 0), App.Vector(2.746031, -7.580916, 0)),  # 5
    Part.LineSegment(App.Vector(2.746031, -7.580916, 0), App.Vector(2.746031, -12.399569, 0)),  # 6
    Part.ArcOfCircle(Part.Circle(App.Vector(0, 0, 0), App.Vector(0, 0, 1), 12.7), math.radians(-77.512716), math.radians(-73.739795)),  # 7
    Part.ArcOfCircle(Part.Circle(App.Vector(0, 0, 0), App.Vector(0, 0, 1), 12.7), math.radians(-73.739795), math.radians(-46.534934)),  # 8
    Part.LineSegment(App.Vector(8.736485, -9.217583, 0), App.Vector(3.556, -6.193416, 0)),  # 9
], False)
sketch8.addConstraint([
    Sketcher.Constraint("Coincident", 0, 2, 1, 1),
    Sketcher.Constraint("Tangent", 1, 2, 2, 1),
    Sketcher.Constraint("Coincident", 2, 2, 3, 1),
    Sketcher.Constraint("Coincident", 3, 2, 4, 1),
    Sketcher.Constraint("Coincident", 4, 2, 0, 1),
    Sketcher.Constraint("Coincident", 5, 2, 6, 1),
    Sketcher.Constraint("Coincident", 6, 2, 7, 1),
    Sketcher.Constraint("Tangent", 7, 2, 8, 1),
    Sketcher.Constraint("Coincident", 8, 2, 9, 1),
    Sketcher.Constraint("Coincident", 9, 2, 5, 1),
    Sketcher.Constraint("Vertical", 3),
    Sketcher.Constraint("Vertical", 6),
    Sketcher.Constraint("Coincident", 1, 3, -1, 1),
    Sketcher.Constraint("Coincident", 7, 3, -1, 1),
    Sketcher.Constraint("Equal", 1, 2),
    Sketcher.Constraint("Equal", 2, 7),
    Sketcher.Constraint("Equal", 7, 8),
    Sketcher.Constraint("Perpendicular", 0, 4),
    Sketcher.Constraint("Perpendicular", 5, 9),
    Sketcher.Constraint("Horizontal", 1, 2, 7, 2),
    Sketcher.Constraint("Horizontal", 0, 2, 8, 2),
    Sketcher.Constraint("Vertical", 1, 2, 4, 2),
    Sketcher.Constraint("Vertical", 7, 2, 9, 2),
    Sketcher.Constraint("Radius", 1, Q("0.5 in")),
    Sketcher.Constraint("Angle", 0, Q("-150 deg")),
    Sketcher.Constraint("DistanceX", 1, 2, -1, 1, Q("0.14 in")),
    Sketcher.Constraint("DistanceY", 2, 2, -1, 1, 12.3987),
    Sketcher.Constraint("DistanceY", 5, 2, 9, 2, 1.3875),
    Sketcher.Constraint("Distance", 0, 5.981908),
    Sketcher.Constraint("DistanceY", 6, 2, 6, 1, 4.818653),
])
pocket5 = body2.newObject("PartDesign::Pocket", "Pocket004")
pocket5.Profile = sketch8
pocket5.Length = Q("1.5 in")

doc.recompute()
